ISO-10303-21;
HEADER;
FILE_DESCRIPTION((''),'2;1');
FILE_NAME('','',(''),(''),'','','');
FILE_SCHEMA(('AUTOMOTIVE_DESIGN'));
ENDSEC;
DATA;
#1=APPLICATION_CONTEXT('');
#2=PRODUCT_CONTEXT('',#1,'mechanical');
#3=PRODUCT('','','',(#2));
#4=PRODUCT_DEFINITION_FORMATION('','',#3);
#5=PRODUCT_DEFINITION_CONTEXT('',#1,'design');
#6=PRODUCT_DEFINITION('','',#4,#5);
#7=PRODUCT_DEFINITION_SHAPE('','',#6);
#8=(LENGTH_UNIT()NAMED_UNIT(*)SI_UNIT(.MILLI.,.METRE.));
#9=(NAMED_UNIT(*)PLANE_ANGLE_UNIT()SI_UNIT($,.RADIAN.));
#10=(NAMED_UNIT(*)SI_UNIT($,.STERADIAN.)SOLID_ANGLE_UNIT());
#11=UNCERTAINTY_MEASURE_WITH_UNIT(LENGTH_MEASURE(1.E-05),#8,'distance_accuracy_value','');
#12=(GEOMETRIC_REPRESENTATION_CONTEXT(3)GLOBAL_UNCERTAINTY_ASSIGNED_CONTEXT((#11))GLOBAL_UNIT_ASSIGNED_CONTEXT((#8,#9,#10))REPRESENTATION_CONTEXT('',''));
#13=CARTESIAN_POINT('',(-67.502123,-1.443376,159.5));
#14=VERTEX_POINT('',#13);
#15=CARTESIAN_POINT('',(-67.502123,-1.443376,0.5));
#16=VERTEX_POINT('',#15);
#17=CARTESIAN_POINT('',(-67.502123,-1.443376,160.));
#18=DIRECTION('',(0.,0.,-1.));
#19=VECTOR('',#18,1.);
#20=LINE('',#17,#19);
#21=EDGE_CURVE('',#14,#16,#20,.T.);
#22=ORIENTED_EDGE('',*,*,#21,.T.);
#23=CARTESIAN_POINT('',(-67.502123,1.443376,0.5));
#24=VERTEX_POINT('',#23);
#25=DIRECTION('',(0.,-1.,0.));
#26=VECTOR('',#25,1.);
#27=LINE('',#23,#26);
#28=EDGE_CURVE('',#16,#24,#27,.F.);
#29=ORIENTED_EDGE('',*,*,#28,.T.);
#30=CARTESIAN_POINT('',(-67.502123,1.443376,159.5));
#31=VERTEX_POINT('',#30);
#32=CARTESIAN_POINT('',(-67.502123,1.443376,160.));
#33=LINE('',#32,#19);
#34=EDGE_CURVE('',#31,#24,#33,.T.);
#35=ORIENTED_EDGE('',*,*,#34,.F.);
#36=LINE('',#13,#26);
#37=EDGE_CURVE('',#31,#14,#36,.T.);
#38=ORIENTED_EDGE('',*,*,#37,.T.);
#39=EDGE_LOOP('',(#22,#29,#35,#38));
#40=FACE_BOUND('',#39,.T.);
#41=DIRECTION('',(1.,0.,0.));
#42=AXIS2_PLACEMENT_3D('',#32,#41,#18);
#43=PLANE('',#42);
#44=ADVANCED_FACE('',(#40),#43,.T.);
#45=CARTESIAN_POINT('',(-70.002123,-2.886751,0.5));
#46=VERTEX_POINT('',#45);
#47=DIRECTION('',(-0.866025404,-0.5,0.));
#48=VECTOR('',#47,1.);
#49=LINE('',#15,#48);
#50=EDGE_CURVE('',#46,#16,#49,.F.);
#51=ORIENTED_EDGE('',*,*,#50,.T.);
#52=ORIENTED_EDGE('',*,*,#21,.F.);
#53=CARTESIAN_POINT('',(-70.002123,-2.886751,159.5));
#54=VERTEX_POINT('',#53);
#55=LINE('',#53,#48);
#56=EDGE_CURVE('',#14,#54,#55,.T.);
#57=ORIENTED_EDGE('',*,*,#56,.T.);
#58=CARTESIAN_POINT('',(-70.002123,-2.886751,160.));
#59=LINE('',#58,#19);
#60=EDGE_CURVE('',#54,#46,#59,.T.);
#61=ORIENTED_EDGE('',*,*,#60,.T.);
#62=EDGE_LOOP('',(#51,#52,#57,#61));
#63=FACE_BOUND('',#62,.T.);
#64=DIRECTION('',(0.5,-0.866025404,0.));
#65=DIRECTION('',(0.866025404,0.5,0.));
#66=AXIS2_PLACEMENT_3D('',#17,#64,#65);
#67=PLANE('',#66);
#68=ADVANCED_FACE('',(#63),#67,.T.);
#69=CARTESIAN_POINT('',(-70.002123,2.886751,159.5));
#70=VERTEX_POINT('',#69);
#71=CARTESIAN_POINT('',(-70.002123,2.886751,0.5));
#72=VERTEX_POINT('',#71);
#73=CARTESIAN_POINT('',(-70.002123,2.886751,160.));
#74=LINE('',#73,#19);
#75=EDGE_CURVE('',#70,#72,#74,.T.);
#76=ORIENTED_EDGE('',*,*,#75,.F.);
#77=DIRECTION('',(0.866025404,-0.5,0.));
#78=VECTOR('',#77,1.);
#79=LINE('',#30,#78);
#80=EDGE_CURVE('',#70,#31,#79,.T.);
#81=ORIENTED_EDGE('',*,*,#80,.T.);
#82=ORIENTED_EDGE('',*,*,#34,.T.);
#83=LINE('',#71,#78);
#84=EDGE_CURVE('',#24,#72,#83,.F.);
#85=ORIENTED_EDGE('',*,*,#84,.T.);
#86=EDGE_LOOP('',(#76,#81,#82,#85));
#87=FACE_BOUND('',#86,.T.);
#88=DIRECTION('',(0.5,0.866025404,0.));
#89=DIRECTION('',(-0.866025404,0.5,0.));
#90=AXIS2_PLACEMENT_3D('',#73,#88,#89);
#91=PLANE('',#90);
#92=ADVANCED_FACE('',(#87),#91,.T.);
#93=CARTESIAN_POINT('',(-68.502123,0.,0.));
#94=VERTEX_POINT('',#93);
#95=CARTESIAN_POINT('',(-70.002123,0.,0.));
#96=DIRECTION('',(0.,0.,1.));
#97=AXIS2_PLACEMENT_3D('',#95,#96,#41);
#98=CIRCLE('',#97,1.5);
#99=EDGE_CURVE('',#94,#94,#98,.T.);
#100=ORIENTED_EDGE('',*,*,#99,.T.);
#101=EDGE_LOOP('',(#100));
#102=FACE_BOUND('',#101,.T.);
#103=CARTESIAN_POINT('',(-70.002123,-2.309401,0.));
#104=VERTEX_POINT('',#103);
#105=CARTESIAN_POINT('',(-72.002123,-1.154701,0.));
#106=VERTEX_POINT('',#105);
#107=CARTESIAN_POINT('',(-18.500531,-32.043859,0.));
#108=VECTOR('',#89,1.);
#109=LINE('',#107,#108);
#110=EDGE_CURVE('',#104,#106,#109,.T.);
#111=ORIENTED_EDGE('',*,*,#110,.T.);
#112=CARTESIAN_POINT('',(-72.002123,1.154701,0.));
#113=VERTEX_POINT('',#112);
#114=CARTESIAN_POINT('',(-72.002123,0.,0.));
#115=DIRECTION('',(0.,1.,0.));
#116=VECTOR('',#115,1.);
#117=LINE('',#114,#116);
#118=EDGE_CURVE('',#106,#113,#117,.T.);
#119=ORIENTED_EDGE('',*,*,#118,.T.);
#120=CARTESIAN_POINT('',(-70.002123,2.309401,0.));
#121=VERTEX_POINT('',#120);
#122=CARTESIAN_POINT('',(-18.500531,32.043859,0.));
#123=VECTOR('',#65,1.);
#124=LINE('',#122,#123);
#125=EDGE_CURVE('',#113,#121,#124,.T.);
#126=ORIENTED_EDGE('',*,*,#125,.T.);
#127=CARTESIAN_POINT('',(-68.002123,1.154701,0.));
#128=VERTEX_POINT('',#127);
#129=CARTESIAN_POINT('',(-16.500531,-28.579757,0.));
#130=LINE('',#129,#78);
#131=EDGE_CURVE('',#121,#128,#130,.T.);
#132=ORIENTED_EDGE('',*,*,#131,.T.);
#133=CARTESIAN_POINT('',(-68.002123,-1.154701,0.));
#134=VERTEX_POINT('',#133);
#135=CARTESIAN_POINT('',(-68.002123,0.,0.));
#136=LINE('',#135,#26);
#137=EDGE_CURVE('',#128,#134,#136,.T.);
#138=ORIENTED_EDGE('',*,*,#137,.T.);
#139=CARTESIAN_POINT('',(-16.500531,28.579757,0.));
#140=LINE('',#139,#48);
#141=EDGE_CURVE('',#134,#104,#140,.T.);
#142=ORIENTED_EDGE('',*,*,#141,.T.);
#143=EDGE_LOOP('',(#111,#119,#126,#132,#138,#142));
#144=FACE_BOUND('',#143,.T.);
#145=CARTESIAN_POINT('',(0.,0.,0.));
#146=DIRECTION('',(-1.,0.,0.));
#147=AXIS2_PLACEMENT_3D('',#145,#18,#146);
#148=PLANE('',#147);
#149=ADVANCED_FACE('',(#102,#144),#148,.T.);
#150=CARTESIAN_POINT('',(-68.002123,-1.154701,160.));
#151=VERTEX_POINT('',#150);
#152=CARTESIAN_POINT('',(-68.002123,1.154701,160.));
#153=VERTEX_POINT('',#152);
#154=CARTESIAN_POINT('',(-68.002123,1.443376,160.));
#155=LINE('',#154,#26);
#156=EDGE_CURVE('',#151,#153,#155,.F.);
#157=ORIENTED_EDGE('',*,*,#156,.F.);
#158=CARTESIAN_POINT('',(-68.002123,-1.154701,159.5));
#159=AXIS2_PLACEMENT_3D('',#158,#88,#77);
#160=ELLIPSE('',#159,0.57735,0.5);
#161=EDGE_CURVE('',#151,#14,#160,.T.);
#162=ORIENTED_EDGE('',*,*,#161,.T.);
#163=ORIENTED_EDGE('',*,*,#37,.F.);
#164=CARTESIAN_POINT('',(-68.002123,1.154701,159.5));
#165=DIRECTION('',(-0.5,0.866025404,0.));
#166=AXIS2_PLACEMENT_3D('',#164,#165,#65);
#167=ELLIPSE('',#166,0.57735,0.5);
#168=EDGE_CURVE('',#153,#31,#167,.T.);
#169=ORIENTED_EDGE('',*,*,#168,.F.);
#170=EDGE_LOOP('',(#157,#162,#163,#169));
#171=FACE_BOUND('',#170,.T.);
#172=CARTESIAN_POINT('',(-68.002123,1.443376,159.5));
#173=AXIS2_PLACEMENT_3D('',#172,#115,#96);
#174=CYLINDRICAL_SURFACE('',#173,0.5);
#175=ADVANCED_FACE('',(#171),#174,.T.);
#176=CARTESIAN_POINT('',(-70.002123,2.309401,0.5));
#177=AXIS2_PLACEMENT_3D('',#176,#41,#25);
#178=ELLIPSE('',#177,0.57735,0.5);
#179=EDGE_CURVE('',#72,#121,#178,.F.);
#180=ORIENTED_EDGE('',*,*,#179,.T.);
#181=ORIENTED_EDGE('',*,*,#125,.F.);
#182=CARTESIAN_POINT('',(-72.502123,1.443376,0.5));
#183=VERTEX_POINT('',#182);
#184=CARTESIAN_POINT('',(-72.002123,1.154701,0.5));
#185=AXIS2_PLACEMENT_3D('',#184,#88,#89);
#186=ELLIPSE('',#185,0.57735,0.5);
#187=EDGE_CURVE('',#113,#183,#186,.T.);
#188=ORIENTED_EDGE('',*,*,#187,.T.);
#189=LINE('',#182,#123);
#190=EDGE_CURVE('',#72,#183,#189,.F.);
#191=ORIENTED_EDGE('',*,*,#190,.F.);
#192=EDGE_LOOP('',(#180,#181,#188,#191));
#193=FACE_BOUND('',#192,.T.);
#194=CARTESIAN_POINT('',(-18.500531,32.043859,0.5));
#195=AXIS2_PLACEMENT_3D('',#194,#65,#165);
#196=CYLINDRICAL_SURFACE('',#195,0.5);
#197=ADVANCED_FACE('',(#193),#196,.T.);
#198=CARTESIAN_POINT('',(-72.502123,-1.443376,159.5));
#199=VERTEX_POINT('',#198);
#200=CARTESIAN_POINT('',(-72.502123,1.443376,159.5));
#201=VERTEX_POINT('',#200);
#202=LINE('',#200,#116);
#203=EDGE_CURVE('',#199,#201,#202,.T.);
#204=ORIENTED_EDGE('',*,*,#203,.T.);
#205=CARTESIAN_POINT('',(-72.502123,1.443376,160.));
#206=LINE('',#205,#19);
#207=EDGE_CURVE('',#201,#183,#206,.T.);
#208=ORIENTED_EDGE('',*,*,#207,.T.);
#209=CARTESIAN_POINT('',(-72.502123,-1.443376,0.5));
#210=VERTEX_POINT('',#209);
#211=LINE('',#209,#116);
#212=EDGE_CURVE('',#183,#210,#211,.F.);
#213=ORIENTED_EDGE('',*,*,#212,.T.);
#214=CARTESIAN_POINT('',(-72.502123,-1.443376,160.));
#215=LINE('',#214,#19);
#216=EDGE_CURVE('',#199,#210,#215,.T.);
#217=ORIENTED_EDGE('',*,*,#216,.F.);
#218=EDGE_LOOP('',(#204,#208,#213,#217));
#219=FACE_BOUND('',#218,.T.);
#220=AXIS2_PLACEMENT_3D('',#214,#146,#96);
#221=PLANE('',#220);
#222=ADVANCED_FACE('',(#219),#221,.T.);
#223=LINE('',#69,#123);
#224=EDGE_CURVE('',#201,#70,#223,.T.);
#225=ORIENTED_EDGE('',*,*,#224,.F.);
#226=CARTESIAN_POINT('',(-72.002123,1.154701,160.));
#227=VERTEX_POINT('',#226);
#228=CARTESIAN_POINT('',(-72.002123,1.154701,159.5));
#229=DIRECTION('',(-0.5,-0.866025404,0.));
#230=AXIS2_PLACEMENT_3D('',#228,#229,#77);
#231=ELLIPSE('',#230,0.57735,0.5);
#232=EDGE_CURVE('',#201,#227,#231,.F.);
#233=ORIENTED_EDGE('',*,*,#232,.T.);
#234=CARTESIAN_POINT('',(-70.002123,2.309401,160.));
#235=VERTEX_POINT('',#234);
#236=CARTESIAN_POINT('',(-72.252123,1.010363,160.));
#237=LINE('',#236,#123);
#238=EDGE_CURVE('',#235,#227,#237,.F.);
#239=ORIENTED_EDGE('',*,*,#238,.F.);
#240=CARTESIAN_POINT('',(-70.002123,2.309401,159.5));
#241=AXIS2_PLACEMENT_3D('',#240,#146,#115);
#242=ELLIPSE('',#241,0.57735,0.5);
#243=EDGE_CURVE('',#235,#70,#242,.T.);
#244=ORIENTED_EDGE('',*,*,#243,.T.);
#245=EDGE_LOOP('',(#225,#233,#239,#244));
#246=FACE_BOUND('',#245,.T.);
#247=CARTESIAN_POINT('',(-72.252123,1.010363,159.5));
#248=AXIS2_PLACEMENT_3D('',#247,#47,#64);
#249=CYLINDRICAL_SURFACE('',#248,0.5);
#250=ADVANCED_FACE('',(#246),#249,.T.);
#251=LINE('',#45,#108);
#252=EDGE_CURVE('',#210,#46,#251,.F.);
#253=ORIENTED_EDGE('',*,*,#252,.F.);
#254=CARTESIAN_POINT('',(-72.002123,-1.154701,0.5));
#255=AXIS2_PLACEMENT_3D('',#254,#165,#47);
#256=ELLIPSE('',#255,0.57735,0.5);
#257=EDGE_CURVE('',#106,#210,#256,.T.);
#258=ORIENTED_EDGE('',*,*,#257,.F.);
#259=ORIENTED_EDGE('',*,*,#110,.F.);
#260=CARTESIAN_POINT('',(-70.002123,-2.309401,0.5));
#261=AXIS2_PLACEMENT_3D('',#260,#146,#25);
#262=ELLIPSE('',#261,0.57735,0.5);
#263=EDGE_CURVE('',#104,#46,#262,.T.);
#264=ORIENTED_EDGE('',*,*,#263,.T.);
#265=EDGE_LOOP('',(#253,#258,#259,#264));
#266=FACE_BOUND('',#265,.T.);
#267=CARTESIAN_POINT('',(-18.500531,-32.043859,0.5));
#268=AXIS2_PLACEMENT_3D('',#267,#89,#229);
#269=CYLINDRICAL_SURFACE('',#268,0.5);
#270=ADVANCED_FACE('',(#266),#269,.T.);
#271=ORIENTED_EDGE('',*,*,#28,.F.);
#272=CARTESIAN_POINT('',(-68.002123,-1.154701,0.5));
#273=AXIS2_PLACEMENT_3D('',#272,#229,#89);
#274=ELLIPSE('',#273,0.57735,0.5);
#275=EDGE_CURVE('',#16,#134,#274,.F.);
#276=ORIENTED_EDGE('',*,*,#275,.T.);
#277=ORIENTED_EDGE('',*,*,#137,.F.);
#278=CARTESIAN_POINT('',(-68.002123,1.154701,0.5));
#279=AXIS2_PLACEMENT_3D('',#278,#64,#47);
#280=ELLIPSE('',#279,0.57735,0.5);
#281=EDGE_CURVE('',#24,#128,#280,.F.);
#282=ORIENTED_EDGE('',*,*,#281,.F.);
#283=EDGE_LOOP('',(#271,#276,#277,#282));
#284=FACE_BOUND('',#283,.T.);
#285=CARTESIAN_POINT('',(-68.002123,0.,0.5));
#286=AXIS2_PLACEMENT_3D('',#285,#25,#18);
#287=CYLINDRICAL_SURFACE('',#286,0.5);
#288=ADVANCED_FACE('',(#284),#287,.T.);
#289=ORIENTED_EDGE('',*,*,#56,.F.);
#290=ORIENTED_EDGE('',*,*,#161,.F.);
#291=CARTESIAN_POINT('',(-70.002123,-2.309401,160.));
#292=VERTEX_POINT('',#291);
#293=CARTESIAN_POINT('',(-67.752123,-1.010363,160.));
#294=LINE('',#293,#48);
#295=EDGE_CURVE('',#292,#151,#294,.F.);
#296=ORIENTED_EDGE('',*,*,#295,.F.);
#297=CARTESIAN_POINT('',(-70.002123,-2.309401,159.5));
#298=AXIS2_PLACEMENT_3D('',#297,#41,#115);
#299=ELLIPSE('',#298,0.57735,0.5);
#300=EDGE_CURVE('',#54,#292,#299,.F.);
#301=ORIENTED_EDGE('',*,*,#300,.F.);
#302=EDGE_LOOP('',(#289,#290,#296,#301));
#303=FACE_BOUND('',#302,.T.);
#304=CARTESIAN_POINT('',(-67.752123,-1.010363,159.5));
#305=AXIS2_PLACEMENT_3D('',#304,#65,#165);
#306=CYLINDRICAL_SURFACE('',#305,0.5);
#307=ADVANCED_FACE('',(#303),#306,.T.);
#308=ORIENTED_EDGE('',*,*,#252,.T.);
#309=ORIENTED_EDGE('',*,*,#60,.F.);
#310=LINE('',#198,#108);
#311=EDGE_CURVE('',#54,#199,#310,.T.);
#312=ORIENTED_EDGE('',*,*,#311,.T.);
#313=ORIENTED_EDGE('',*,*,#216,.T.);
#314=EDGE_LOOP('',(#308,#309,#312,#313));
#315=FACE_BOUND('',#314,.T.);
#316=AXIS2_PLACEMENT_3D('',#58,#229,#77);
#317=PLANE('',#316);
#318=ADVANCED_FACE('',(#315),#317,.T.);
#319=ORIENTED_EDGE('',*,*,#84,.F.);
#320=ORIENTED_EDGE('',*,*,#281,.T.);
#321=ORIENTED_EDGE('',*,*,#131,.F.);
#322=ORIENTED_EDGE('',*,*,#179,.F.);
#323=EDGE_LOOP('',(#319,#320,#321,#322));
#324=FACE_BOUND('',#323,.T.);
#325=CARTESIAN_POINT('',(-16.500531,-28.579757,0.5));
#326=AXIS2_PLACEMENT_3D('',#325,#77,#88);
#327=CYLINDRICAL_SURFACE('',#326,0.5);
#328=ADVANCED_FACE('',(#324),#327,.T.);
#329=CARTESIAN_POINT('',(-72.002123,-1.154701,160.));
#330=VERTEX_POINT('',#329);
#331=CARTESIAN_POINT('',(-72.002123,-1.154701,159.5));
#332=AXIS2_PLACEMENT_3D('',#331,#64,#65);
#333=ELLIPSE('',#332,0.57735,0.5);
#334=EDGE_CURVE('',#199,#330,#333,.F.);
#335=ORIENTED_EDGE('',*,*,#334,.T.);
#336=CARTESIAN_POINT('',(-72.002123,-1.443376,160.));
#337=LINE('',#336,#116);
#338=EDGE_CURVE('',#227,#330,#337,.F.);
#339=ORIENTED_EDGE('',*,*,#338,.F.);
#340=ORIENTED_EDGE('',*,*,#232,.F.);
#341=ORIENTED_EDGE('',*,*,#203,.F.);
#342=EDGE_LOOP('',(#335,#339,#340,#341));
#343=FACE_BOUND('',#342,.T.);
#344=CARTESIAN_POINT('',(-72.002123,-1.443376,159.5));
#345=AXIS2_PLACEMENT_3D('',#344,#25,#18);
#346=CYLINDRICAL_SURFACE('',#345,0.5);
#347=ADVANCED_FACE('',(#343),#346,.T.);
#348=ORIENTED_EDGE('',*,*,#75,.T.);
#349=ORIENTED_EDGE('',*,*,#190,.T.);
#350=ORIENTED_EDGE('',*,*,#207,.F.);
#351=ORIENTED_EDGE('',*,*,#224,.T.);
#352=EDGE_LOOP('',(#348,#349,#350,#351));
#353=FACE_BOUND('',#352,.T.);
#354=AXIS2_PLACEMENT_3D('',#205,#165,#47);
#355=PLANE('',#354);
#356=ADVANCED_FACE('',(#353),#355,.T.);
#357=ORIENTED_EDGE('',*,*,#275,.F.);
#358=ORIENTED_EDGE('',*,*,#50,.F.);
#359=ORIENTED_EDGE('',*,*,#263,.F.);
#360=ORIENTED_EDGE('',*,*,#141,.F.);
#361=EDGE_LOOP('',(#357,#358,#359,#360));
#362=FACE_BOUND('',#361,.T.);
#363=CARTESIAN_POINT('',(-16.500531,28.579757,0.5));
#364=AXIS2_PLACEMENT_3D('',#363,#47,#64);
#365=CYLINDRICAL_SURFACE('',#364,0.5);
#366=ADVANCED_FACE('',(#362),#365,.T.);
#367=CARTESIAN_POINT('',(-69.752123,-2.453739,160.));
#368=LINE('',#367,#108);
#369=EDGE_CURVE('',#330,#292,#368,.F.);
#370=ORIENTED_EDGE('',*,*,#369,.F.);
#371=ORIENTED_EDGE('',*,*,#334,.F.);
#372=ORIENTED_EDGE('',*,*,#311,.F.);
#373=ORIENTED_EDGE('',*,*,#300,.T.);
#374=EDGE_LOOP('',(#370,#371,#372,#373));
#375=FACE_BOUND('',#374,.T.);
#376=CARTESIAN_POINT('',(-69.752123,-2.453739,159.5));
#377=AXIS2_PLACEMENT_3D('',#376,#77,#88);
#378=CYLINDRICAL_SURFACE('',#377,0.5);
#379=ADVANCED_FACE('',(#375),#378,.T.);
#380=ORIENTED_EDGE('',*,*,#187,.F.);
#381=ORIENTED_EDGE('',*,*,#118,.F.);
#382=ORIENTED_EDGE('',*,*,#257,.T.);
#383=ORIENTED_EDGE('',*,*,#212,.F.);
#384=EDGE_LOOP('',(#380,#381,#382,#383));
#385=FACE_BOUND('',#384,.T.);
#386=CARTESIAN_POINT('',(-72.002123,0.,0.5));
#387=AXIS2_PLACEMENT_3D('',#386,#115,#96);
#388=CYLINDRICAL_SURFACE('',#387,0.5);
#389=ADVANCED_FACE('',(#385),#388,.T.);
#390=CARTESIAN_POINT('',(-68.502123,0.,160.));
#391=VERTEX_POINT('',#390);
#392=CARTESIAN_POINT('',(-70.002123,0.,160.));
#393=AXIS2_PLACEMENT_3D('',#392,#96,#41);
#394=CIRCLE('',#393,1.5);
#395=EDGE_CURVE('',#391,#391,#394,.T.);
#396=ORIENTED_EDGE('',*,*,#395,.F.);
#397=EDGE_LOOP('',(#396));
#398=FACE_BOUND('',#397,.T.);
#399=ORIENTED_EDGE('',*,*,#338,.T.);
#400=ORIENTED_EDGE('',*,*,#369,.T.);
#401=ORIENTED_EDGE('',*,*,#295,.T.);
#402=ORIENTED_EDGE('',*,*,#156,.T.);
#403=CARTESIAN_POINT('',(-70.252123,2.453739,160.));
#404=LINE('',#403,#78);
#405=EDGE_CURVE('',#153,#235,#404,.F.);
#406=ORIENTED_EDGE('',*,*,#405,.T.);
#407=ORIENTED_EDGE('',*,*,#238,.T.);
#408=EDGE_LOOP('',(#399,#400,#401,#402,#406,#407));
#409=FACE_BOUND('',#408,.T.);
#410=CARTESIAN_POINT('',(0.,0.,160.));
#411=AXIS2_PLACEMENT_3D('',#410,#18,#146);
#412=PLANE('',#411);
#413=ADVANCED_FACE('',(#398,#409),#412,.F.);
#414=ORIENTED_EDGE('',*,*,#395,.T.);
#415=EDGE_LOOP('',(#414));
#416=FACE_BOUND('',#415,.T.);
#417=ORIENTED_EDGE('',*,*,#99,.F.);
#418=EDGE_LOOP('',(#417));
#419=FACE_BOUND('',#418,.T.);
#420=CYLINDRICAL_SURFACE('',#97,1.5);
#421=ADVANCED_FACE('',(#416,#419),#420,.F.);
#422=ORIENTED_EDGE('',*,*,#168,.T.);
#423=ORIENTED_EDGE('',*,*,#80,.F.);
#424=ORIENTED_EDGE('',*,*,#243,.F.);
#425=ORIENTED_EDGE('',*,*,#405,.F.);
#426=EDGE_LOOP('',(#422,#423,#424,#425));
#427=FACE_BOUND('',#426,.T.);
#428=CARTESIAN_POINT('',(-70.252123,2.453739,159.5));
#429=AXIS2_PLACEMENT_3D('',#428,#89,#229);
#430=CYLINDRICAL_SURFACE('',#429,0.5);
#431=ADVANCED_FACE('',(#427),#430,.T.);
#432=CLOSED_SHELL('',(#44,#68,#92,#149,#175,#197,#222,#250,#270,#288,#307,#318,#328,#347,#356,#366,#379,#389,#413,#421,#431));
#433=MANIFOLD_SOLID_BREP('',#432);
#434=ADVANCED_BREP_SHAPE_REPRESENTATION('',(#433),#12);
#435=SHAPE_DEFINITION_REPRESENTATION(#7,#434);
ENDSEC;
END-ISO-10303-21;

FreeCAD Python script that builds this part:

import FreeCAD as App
import Part
import Sketcher
from FreeCAD import Vector
Q = App.Units.Quantity


def edges_at(feature, points):
    """Names of the edges that pass closest to the given points."""
    edges = feature.Shape.Edges
    near = lambda p: min(range(len(edges)), key=lambda i: edges[i].distToShape(Part.Vertex(*p))[0])
    return sorted({f"Edge{near(p) + 1}" for p in points})


def add_polygon(sketch, points):
    """Adds a closed chain of lines whose ends are joined by coincident constraints."""
    first, n = sketch.GeometryCount, len(points)
    for a, b in zip(points, points[1:] + points[:1]):
        sketch.addGeometry(Part.LineSegment(App.Vector(*a, 0), App.Vector(*b, 0)), False)
    for i in range(n):
        sketch.addConstraint(Sketcher.Constraint("Coincident", first + i, 2, first + (i + 1) % n, 1))

doc = App.newDocument("Part")
body = doc.addObject("PartDesign::Body", "Body")

sketch1 = body.newObject("Sketcher::SketchObject", "Sketch")
sketch1.AttachmentSupport = (doc.getObject("XY_Plane"), [""])
sketch1.MapMode = "FlatFace"
add_polygon(sketch1, [(-67.5, -1.4), (-70, -2.9), (-72.5, -1.4), (-72.5, 1.4), (-70, 2.9), (-67.5, 1.4)])
sketch1.addConstraint([
    Sketcher.Constraint("Vertical", 2),
    Sketcher.Constraint("Vertical", 5),
    Sketcher.Constraint("Symmetric", 0, 2, 3, 2, -1),
    Sketcher.Constraint("Parallel", 0, 3),
    Sketcher.Constraint("Parallel", 1, 4),
    Sketcher.Constraint("Horizontal", 2, 2, 4, 2),
    Sketcher.Constraint("Horizontal", 1, 2, 5, 2),
    Sketcher.Constraint("Angle", 0, Q("-150 deg")),
    Sketcher.Constraint("DistanceX", 2, 2, 4, 2, Q("5 mm")),
    Sketcher.Constraint("DistanceY", 2, 1, 2, 2, Q("2.886751 mm")),
    Sketcher.Constraint("DistanceX", 0, 2, -1, 1, Q("70.002123 mm")),
])
pad1 = body.newObject("PartDesign::Pad", "Pad")
pad1.Profile = sketch1
pad1.Length = 160
doc.recompute()

fillet = body.newObject("PartDesign::Fillet", "Fillet")
fillet.Base = (pad1, edges_at(pad1, [
    (-71.252, -2.165, 160),
    (-72.502, 0, 160),
    (-71.252, 2.165, 160),
    (-68.752, 2.165, 160),
    (-67.502, 0, 160),
    (-68.752, 2.165, 0),
    (-71.252, 2.165, 0),
    (-72.502, 0, 0),
    (-71.252, -2.165, 0),
    (-68.752, -2.165, 0),
    (-67.502, 0, 0),
    (-68.752, -2.165, 160),
]))
fillet.Radius = 0.5

sketch2 = body.newObject("Sketcher::SketchObject", "Sketch001")
sketch2.AttachmentSupport = (doc.getObject("XY_Plane"), [""])
sketch2.MapMode = "FlatFace"
sketch2.AttachmentOffset = App.Placement(Vector(0, 0, 160), App.Rotation())
sketch2.addGeometry(Part.Circle(Vector(-70, 0, 0), Vector(0, 0, 1), 1.5), False)
sketch2.addConstraint([
    Sketcher.Constraint("PointOnObject", 0, 3, -1),
    Sketcher.Constraint("Diameter", 0, Q("3 mm")),
    Sketcher.Constraint("DistanceX", 0, 3, -1, 1, Q("70.002123 mm")),
])
pocket1 = body.newObject("PartDesign::Pocket", "Pocket")
pocket1.Profile = sketch2
pocket1.Type = "ThroughAll"

doc.recompute()
